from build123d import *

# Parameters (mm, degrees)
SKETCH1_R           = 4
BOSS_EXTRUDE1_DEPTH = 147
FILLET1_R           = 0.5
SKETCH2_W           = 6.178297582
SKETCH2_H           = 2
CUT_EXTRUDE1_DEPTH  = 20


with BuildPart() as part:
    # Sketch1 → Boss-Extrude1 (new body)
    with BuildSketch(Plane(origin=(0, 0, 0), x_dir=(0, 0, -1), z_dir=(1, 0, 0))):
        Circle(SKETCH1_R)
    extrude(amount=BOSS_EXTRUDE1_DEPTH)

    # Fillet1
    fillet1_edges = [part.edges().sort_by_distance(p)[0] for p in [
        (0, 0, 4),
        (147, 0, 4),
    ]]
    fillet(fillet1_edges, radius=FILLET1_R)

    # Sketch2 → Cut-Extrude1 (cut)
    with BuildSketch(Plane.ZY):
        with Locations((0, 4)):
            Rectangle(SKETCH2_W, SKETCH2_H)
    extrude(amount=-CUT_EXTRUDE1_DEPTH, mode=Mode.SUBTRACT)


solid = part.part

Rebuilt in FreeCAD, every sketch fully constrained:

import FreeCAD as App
import Part
import Sketcher

V = App.Vector


def edges_at(feature, points):
    """Names of the edges that pass closest to the given points."""
    edges = feature.Shape.Edges
    near = lambda p: min(range(len(edges)), key=lambda i: edges[i].distToShape(Part.Vertex(*p))[0])
    return sorted({f"Edge{near(p) + 1}" for p in points})


def add_polygon(sketch, points):
    """Adds a closed chain of lines whose ends are joined by coincident constraints."""
    first, n = sketch.GeometryCount, len(points)
    for a, b in zip(points, points[1:] + points[:1]):
        sketch.addGeometry(Part.LineSegment(App.Vector(*a, 0), App.Vector(*b, 0)), False)
    for i in range(n):
        sketch.addConstraint(Sketcher.Constraint("Coincident", first + i, 2, first + (i + 1) % n, 1))

doc = App.newDocument("Part")
body = doc.addObject("PartDesign::Body", "Body")

sketch1 = body.newObject("Sketcher::SketchObject", "Sketch")
sketch1.AttachmentSupport = (doc.getObject("YZ_Plane"), [""])
sketch1.MapMode = "FlatFace"
sketch1.addGeometry(Part.Circle(V(0, 0, 0), V(0, 0, 1), 4), False)
sketch1.addConstraint([
    Sketcher.Constraint("Coincident", 0, 3, -1, 1),
    Sketcher.Constraint("Diameter", 0, 8.0),
])
pad1 = body.newObject("PartDesign::Pad", "Pad")
pad1.Profile = sketch1
pad1.Length = 147
doc.recompute()

fillet = body.newObject("PartDesign::Fillet", "Fillet")
fillet.Base = (pad1, edges_at(pad1, [(0, 0, 4), (147, 0, 4)]))
fillet.Radius = 0.5

sketch2 = body.newObject("Sketcher::SketchObject", "Sketch001")
sketch2.AttachmentSupport = (doc.getObject("YZ_Plane"), [""])
sketch2.MapMode = "FlatFace"
add_polygon(sketch2, [(5, -3.089149), (3, -3.089149), (3, 3.089149), (5, 3.089149)])
sketch2.addConstraint([
    Sketcher.Constraint("Horizontal", 0),
    Sketcher.Constraint("Vertical", 1),
    Sketcher.Constraint("Horizontal", 2),
    Sketcher.Constraint("Vertical", 3),
    Sketcher.Constraint("DistanceX", 0, 2, 0, 1, 2.0),
    Sketcher.Constraint("DistanceX", -1, 1, 0, 2, 3.0),
    Sketcher.Constraint("DistanceY", 1, 1, 1, 2, 6.178298),
    Sketcher.Constraint("DistanceY", 0, 2, -1, 1, 3.089149),
])
pocket1 = body.newObject("PartDesign::Pocket", "Pocket")
pocket1.Profile = sketch2
pocket1.Length = 20
pocket1.Reversed = True

doc.recompute()
